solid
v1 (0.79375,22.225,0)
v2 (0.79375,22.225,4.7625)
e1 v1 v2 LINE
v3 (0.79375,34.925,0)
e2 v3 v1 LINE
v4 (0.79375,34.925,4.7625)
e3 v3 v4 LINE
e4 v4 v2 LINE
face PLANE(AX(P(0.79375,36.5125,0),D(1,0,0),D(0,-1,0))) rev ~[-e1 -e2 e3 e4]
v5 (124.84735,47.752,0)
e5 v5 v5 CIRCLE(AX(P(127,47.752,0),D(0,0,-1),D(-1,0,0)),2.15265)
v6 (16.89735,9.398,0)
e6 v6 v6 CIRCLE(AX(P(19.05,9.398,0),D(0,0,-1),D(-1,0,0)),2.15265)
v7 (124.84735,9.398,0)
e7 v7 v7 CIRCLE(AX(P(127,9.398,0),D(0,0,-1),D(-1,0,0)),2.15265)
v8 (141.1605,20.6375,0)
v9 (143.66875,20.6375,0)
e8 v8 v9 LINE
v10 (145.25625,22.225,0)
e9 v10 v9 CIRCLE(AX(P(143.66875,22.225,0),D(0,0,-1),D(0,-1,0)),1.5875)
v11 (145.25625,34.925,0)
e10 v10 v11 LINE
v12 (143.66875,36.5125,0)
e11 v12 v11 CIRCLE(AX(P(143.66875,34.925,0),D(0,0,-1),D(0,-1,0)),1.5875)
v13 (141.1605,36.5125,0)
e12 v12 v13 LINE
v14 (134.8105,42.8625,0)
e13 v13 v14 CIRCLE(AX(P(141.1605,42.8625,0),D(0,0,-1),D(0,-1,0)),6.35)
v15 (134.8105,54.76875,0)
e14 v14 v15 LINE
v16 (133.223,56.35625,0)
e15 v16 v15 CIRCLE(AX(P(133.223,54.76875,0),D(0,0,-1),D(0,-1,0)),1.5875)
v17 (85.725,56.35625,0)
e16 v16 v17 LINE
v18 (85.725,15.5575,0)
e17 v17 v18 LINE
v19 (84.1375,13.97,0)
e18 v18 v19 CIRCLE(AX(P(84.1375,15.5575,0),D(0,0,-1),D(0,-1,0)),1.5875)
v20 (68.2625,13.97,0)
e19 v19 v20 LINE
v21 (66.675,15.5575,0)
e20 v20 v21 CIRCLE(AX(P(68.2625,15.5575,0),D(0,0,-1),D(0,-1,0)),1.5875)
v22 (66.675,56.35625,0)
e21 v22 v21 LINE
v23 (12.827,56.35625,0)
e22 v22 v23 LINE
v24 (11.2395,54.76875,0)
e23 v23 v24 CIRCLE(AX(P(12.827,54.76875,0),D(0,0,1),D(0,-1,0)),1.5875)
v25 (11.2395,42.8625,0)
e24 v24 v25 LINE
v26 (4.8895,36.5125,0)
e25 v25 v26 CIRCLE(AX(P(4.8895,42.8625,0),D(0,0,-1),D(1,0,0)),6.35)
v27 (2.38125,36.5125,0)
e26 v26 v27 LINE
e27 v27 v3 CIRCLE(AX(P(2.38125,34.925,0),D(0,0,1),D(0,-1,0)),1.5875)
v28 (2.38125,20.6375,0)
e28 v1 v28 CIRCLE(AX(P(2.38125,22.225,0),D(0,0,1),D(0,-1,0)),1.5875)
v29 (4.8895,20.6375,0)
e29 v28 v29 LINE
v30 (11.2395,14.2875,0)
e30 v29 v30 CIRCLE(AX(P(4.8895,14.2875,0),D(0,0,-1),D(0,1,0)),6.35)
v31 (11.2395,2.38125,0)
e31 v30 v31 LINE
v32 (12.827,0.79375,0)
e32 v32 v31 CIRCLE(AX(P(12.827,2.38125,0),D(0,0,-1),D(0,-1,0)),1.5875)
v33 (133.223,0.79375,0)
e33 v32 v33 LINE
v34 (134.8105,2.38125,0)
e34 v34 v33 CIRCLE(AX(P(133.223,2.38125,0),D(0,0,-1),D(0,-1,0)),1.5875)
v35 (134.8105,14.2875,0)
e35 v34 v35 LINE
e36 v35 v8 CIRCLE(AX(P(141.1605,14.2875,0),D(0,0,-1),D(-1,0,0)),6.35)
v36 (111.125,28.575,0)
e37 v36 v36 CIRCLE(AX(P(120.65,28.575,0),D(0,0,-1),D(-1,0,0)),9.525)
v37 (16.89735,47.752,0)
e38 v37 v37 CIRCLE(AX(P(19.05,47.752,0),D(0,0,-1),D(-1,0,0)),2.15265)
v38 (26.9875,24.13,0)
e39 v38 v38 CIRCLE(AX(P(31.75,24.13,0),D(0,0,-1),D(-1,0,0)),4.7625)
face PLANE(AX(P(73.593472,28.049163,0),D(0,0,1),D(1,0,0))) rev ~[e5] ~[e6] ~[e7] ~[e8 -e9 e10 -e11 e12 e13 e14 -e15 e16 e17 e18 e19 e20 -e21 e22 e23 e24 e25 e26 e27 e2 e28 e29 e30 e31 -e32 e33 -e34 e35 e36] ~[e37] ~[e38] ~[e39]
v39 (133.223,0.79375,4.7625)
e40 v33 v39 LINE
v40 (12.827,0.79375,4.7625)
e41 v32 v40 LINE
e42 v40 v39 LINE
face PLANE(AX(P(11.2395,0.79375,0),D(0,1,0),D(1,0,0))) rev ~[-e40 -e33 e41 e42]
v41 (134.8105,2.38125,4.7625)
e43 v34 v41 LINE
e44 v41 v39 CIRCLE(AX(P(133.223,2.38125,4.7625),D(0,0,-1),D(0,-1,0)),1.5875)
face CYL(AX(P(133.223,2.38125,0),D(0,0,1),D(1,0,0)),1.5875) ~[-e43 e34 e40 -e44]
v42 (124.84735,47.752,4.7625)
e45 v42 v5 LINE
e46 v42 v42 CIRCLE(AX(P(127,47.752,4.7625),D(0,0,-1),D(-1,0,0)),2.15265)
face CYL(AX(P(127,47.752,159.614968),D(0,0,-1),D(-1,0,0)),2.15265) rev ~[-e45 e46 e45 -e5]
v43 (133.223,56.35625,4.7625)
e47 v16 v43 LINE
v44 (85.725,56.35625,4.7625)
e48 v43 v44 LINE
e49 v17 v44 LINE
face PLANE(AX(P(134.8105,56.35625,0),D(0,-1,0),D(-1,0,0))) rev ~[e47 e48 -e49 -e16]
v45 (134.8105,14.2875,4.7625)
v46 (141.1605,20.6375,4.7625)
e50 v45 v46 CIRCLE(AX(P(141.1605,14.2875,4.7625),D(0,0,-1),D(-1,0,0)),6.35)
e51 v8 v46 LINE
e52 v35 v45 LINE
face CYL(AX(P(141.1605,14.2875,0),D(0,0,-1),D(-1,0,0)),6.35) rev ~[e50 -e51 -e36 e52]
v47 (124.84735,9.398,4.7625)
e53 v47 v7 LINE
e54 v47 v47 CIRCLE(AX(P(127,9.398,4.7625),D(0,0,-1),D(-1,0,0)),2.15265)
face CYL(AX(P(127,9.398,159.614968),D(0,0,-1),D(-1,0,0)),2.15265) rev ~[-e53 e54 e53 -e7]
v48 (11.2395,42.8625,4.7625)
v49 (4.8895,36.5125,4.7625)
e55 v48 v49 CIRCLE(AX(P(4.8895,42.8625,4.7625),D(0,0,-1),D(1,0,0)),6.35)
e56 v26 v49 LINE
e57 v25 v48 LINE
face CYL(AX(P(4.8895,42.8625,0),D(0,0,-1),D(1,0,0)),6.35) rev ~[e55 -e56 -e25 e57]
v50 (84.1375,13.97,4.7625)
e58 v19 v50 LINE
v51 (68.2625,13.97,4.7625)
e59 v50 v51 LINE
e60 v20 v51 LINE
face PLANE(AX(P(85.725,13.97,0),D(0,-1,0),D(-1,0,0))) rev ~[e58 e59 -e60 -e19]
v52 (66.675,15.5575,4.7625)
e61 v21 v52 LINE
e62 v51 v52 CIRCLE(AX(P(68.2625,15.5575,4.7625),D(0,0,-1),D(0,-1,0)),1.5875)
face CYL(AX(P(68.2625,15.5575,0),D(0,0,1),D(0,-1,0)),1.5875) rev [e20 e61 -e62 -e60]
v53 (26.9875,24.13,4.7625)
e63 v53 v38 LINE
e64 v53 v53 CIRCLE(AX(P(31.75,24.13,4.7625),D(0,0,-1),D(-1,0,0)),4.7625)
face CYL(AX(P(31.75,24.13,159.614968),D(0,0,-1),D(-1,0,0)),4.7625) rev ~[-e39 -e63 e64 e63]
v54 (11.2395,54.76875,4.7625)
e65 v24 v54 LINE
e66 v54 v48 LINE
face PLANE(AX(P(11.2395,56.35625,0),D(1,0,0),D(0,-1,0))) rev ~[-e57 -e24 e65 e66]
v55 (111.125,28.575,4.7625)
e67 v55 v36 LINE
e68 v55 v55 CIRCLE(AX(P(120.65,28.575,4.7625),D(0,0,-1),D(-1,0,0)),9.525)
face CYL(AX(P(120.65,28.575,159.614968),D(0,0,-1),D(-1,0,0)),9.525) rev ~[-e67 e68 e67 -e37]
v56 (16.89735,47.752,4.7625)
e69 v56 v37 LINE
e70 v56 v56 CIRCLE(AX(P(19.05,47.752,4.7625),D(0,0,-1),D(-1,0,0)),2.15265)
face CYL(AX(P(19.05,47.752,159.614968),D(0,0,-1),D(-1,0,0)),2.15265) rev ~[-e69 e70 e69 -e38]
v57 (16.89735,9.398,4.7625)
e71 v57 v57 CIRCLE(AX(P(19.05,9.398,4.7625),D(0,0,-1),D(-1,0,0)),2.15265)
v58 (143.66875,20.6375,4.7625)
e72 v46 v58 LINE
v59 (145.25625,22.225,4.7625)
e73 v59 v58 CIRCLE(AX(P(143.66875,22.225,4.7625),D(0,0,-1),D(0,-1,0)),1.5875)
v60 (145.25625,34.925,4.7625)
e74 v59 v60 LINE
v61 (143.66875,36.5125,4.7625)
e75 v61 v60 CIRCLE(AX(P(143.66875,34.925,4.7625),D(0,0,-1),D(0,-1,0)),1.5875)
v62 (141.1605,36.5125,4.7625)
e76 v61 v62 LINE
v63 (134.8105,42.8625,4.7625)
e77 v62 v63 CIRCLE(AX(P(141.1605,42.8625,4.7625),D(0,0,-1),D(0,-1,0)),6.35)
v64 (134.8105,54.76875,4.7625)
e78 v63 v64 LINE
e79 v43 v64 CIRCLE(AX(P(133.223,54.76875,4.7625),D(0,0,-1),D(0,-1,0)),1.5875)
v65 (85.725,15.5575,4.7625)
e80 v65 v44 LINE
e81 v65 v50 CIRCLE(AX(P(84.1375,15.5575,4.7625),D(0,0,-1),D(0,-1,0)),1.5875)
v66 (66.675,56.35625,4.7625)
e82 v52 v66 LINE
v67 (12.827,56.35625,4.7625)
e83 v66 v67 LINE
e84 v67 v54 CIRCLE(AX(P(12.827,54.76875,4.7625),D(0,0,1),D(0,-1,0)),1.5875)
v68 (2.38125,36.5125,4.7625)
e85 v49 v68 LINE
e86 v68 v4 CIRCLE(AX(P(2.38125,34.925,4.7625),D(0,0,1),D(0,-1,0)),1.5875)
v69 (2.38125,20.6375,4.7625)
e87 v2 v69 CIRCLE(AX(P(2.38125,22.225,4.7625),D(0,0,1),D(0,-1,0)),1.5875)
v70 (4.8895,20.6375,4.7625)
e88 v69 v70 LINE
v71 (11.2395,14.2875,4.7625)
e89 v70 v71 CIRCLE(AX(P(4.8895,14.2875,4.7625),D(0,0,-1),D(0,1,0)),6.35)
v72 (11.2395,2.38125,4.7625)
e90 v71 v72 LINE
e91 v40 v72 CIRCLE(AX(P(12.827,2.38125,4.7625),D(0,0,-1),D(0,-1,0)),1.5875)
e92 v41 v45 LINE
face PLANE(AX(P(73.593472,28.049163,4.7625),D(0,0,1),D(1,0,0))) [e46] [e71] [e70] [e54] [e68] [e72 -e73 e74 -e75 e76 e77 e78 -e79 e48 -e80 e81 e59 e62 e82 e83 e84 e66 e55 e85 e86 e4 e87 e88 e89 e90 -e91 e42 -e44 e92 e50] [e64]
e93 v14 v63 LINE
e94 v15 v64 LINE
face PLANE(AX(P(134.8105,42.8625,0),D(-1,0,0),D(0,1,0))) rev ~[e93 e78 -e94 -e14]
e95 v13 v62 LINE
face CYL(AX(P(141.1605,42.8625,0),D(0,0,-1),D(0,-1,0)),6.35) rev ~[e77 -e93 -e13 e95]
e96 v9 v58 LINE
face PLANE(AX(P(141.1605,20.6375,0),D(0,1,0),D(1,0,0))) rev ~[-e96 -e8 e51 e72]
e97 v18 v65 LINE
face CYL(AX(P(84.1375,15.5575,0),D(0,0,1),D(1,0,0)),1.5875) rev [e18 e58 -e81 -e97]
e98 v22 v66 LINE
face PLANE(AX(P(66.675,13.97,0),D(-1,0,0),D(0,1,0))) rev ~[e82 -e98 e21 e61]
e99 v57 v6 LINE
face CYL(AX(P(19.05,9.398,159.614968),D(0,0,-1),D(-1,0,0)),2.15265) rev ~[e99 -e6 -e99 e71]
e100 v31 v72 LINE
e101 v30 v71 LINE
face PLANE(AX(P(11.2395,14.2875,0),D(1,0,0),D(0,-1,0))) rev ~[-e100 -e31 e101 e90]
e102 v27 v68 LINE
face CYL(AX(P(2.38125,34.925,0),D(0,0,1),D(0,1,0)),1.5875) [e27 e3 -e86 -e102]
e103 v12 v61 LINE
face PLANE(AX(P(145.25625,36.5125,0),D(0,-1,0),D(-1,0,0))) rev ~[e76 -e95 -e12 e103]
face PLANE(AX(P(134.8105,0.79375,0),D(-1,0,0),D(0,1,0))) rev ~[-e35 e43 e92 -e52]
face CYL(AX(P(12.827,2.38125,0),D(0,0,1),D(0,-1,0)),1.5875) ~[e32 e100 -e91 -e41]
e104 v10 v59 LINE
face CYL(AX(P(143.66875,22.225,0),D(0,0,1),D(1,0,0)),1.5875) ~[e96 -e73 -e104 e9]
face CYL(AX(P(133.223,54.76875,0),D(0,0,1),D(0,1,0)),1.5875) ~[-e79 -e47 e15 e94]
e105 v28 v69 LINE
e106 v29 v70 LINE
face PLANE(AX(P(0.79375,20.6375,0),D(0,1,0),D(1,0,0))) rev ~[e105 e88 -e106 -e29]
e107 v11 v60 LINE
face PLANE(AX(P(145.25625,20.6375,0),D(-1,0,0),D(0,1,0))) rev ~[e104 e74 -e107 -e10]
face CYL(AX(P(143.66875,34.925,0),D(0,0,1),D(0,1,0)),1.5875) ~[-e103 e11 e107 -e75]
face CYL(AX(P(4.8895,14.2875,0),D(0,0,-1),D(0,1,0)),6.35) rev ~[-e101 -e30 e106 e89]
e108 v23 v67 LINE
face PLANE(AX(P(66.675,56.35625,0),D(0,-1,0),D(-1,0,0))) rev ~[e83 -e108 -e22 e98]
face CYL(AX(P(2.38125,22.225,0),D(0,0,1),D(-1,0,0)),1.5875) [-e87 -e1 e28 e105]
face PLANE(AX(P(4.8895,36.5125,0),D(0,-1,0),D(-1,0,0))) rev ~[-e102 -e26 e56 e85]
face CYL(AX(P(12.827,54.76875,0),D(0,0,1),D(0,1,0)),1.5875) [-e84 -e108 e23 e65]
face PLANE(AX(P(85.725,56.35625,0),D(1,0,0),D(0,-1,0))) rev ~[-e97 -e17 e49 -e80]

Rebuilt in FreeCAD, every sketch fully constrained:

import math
import FreeCAD as App
import Part
import Sketcher
Q = App.Units.Quantity


def edges_at(feature, points):
    """Names of the edges that pass closest to the given points."""
    edges = feature.Shape.Edges
    near = lambda p: min(range(len(edges)), key=lambda i: edges[i].distToShape(Part.Vertex(*p))[0])
    return sorted({f"Edge{near(p) + 1}" for p in points})

doc = App.newDocument("Part")
params = doc.addObject("Spreadsheet::Sheet", "Params")
for row, (alias, value) in enumerate([
    ("sketch1_radius", "0.25 in"),
    ("sketch1_width", "0.75 in"),
    ("sketch1_width2", "4.865 in"),
    ("sketch1_height", "0.53125 in"),
    ("sketch1_height2", "0.625 in"),
    ("pad1_length", "0.1875 in"),
    ("sketch2_diameter", "0.375 in"),
    ("hole_diameter", "0.375 in"),
    ("sketch3_diameter", "0.75 in"),
    ("hole2_diameter", "0.75 in"),
    ("hole3_diameter", "0.1695 in"),
    ("fillet_radius", "0.0625 in"),
], start=1):
    params.set(f"A{row}", alias)
    params.set(f"B{row}", "=" + value)
    params.setAlias(f"B{row}", alias)

body = doc.addObject("PartDesign::Body", "Body")

sketch1 = doc.addObject("Sketcher::SketchObject", "Sketch")
body.addObject(sketch1)
sketch1.AttachmentSupport = (doc.XY_Plane, [""])
sketch1.MapMode = "FlatFace"
sketch1.addGeometry(Part.LineSegment(App.Vector(85.725, 56.35625, 0), App.Vector(85.725, 13.97, 0)), False)
sketch1.addGeometry(Part.LineSegment(App.Vector(85.725, 13.97, 0), App.Vector(66.675, 13.97, 0)), False)
sketch1.addGeometry(Part.LineSegment(App.Vector(66.675, 13.97, 0), App.Vector(66.675, 56.35625, 0)), False)
sketch1.addGeometry(Part.LineSegment(App.Vector(66.675, 56.35625, 0), App.Vector(11.2395, 56.35625, 0)), False)
sketch1.addGeometry(Part.LineSegment(App.Vector(11.2395, 56.35625, 0), App.Vector(11.2395, 42.8625, 0)), False)
sketch1.addGeometry(Part.ArcOfCircle(Part.Circle(App.Vector(4.8895, 42.8625, 0), App.Vector(0, 0, 1), 6.35), math.radians(-90), math.radians(0)), False)
sketch1.addGeometry(Part.LineSegment(App.Vector(4.8895, 36.5125, 0), App.Vector(0.79375, 36.5125, 0)), False)
sketch1.addGeometry(Part.LineSegment(App.Vector(0.79375, 36.5125, 0), App.Vector(0.79375, 20.6375, 0)), False)
sketch1.addGeometry(Part.LineSegment(App.Vector(0.79375, 20.6375, 0), App.Vector(4.8895, 20.6375, 0)), False)
sketch1.addGeometry(Part.ArcOfCircle(Part.Circle(App.Vector(4.8895, 14.2875, 0), App.Vector(0, 0, 1), 6.35), math.radians(0), math.radians(90)), False)
sketch1.addGeometry(Part.LineSegment(App.Vector(11.2395, 14.2875, 0), App.Vector(11.2395, 0.79375, 0)), False)
sketch1.addGeometry(Part.LineSegment(App.Vector(11.2395, 0.79375, 0), App.Vector(134.8105, 0.79375, 0)), False)
sketch1.addGeometry(Part.LineSegment(App.Vector(134.8105, 0.79375, 0), App.Vector(134.8105, 14.2875, 0)), False)
sketch1.addGeometry(Part.ArcOfCircle(Part.Circle(App.Vector(141.1605, 14.2875, 0), App.Vector(0, 0, 1), 6.35), math.radians(90), math.radians(180)), False)
sketch1.addGeometry(Part.LineSegment(App.Vector(141.1605, 20.6375, 0), App.Vector(145.25625, 20.6375, 0)), False)
sketch1.addGeometry(Part.LineSegment(App.Vector(145.25625, 20.6375, 0), App.Vector(145.25625, 36.5125, 0)), False)
sketch1.addGeometry(Part.LineSegment(App.Vector(145.25625, 36.5125, 0), App.Vector(141.1605, 36.5125, 0)), False)
sketch1.addGeometry(Part.ArcOfCircle(Part.Circle(App.Vector(141.1605, 42.8625, 0), App.Vector(0, 0, 1), 6.35), math.radians(180), math.radians(270)), False)
sketch1.addGeometry(Part.LineSegment(App.Vector(134.8105, 42.8625, 0), App.Vector(134.8105, 56.35625, 0)), False)
sketch1.addGeometry(Part.LineSegment(App.Vector(134.8105, 56.35625, 0), App.Vector(85.725, 56.35625, 0)), False)
sketch1.addConstraint(Sketcher.Constraint("Coincident", 0, 2, 1, 1))
sketch1.addConstraint(Sketcher.Constraint("Coincident", 1, 2, 2, 1))
sketch1.addConstraint(Sketcher.Constraint("Coincident", 2, 2, 3, 1))
sketch1.addConstraint(Sketcher.Constraint("Coincident", 3, 2, 4, 1))
sketch1.addConstraint(Sketcher.Constraint("Tangent", 4, 2, 5, 2))
sketch1.addConstraint(Sketcher.Constraint("Tangent", 5, 1, 6, 1))
sketch1.addConstraint(Sketcher.Constraint("Coincident", 6, 2, 7, 1))
sketch1.addConstraint(Sketcher.Constraint("Coincident", 7, 2, 8, 1))
sketch1.addConstraint(Sketcher.Constraint("Tangent", 8, 2, 9, 2))
sketch1.addConstraint(Sketcher.Constraint("Tangent", 9, 1, 10, 1))
sketch1.addConstraint(Sketcher.Constraint("Coincident", 10, 2, 11, 1))
sketch1.addConstraint(Sketcher.Constraint("Coincident", 11, 2, 12, 1))
sketch1.addConstraint(Sketcher.Constraint("Tangent", 12, 2, 13, 2))
sketch1.addConstraint(Sketcher.Constraint("Tangent", 13, 1, 14, 1))
sketch1.addConstraint(Sketcher.Constraint("Coincident", 14, 2, 15, 1))
sketch1.addConstraint(Sketcher.Constraint("Coincident", 15, 2, 16, 1))
sketch1.addConstraint(Sketcher.Constraint("Tangent", 16, 2, 17, 2))
sketch1.addConstraint(Sketcher.Constraint("Tangent", 17, 1, 18, 1))
sketch1.addConstraint(Sketcher.Constraint("Coincident", 18, 2, 19, 1))
sketch1.addConstraint(Sketcher.Constraint("Coincident", 19, 2, 0, 1))
sketch1.addConstraint(Sketcher.Constraint("Vertical", 0))
sketch1.addConstraint(Sketcher.Constraint("Horizontal", 1))
sketch1.addConstraint(Sketcher.Constraint("Vertical", 2))
sketch1.addConstraint(Sketcher.Constraint("Horizontal", 3))
sketch1.addConstraint(Sketcher.Constraint("Vertical", 4))
sketch1.addConstraint(Sketcher.Constraint("Horizontal", 6))
sketch1.addConstraint(Sketcher.Constraint("Vertical", 7))
sketch1.addConstraint(Sketcher.Constraint("Horizontal", 8))
sketch1.addConstraint(Sketcher.Constraint("Vertical", 10))
sketch1.addConstraint(Sketcher.Constraint("Horizontal", 11))
sketch1.addConstraint(Sketcher.Constraint("Vertical", 12))
sketch1.addConstraint(Sketcher.Constraint("Horizontal", 14))
sketch1.addConstraint(Sketcher.Constraint("Vertical", 15))
sketch1.addConstraint(Sketcher.Constraint("Horizontal", 16))
sketch1.addConstraint(Sketcher.Constraint("Vertical", 18))
sketch1.addConstraint(Sketcher.Constraint("Horizontal", 19))
sketch1.addConstraint(Sketcher.Constraint("Equal", 5, 9))
sketch1.addConstraint(Sketcher.Constraint("Equal", 9, 13))
sketch1.addConstraint(Sketcher.Constraint("Equal", 13, 17))
sketch1.addConstraint(Sketcher.Constraint("Horizontal", 9, 3, 13, 3))
sketch1.addConstraint(Sketcher.Constraint("Horizontal", 5, 3, 17, 3))
sketch1.addConstraint(Sketcher.Constraint("Horizontal", 3, 2, 18, 2))
sketch1.addConstraint(Sketcher.Constraint("Vertical", 5, 3, 9, 3))
sketch1.addConstraint(Sketcher.Constraint("Vertical", 13, 3, 17, 3))
sketch1.addConstraint(Sketcher.Constraint("Equal", 8, 14))
sketch1.addConstraint(Sketcher.Constraint("Equal", 4, 10))
sketch1.addConstraint(Sketcher.Constraint("Radius", 5, Q("0.25 in")))
sketch1.addConstraint(Sketcher.Constraint("DistanceX", 1, 2, 1, 1, Q("0.75 in")))
sketch1.addConstraint(Sketcher.Constraint("DistanceX", 11, 1, 11, 2, Q("4.865 in")))
sketch1.addConstraint(Sketcher.Constraint("DistanceY", 4, 2, 4, 1, Q("0.53125 in")))
sketch1.addConstraint(Sketcher.Constraint("DistanceY", 7, 2, 7, 1, Q("0.625 in")))
sketch1.addConstraint(Sketcher.Constraint("DistanceY", -1, 1, 0, 2, Q("0.55 in")))
sketch1.addConstraint(Sketcher.Constraint("DistanceX", 3, 2, 3, 1, Q("2.1825 in")))
sketch1.addConstraint(Sketcher.Constraint("DistanceY", -1, 1, 5, 3, Q("1.6875 in")))
sketch1.addConstraint(Sketcher.Constraint("DistanceX", -1, 1, 0, 2, Q("3.375 in")))
sketch1.addConstraint(Sketcher.Constraint("DistanceX", -1, 1, 6, 2, Q("0.03125 in")))
sketch1.setExpression("Constraints[46]", "Params.sketch1_radius")
sketch1.setExpression("Constraints[47]", "Params.sketch1_width")
sketch1.setExpression("Constraints[48]", "Params.sketch1_width2")
sketch1.setExpression("Constraints[49]", "Params.sketch1_height")
sketch1.setExpression("Constraints[50]", "Params.sketch1_height2")
pad1 = doc.addObject("PartDesign::Pad", "Pad")
body.addObject(pad1)
pad1.Profile = sketch1
pad1.setExpression("Length", "Params.pad1_length")

sketch2 = doc.addObject("Sketcher::SketchObject", "Sketch001")
body.addObject(sketch2)
sketch2.AttachmentSupport = (doc.XY_Plane, [""])
sketch2.MapMode = "FlatFace"
sketch2.AttachmentOffset = App.Placement(App.Vector(0, 0, 0.1875 * 25.4), App.Rotation())
sketch2.addGeometry(Part.Circle(App.Vector(31.75, 24.13, 0), App.Vector(0, 0, 1), 4.7625), False)
sketch2.addConstraint(Sketcher.Constraint("Diameter", 0, Q("0.375 in")))
sketch2.addConstraint(Sketcher.Constraint("DistanceX", -1, 1, 0, 3, Q("1.25 in")))
sketch2.addConstraint(Sketcher.Constraint("DistanceY", -1, 1, 0, 3, Q("0.95 in")))
sketch2.setExpression("Constraints[0]", "Params.sketch2_diameter")
doc.recompute()
hole = doc.addObject("PartDesign::Hole", "Hole")
body.addObject(hole)
hole.Profile = sketch2
hole.ThreadType = "None"
hole.setExpression("Diameter", "Params.hole_diameter")
hole.DepthType = "ThroughAll"

sketch3 = doc.addObject("Sketcher::SketchObject", "Sketch002")
body.addObject(sketch3)
sketch3.AttachmentSupport = (doc.XY_Plane, [""])
sketch3.MapMode = "FlatFace"
sketch3.AttachmentOffset = App.Placement(App.Vector(0, 0, 0.1875 * 25.4), App.Rotation())
sketch3.addGeometry(Part.Circle(App.Vector(76.2, 28.575, 0), App.Vector(0, 0, 1), 9.525), False)
sketch3.addGeometry(Part.Circle(App.Vector(120.65, 28.575, 0), App.Vector(0, 0, 1), 9.525), False)
sketch3.addConstraint(Sketcher.Constraint("Equal", 0, 1))
sketch3.addConstraint(Sketcher.Constraint("Horizontal", 0, 3, 1, 3))
sketch3.addConstraint(Sketcher.Constraint("Diameter", 0, Q("0.75 in")))
sketch3.addConstraint(Sketcher.Constraint("DistanceX", -1, 1, 0, 3, Q("3 in")))
sketch3.addConstraint(Sketcher.Constraint("DistanceX", -1, 1, 1, 3, Q("4.75 in")))
sketch3.addConstraint(Sketcher.Constraint("DistanceY", -1, 1, 0, 3, Q("1.125 in")))
sketch3.setExpression("Constraints[2]", "Params.sketch3_diameter")
doc.recompute()
hole2 = doc.addObject("PartDesign::Hole", "Hole001")
body.addObject(hole2)
hole2.Profile = sketch3
hole2.ThreadType = "None"
hole2.setExpression("Diameter", "Params.hole2_diameter")
hole2.DepthType = "ThroughAll"

sketch4 = doc.addObject("Sketcher::SketchObject", "Sketch003")
body.addObject(sketch4)
sketch4.AttachmentSupport = (doc.XY_Plane, [""])
sketch4.MapMode = "FlatFace"
sketch4.AttachmentOffset = App.Placement(App.Vector(0, 0, 0.1875 * 25.4), App.Rotation())
sketch4.addGeometry(Part.Circle(App.Vector(19.05, 9.398, 0), App.Vector(0, 0, 1), 2.15265), False)
sketch4.addGeometry(Part.Circle(App.Vector(19.05, 47.752, 0), App.Vector(0, 0, 1), 2.15265), False)
sketch4.addGeometry(Part.Circle(App.Vector(127, 47.752, 0), App.Vector(0, 0, 1), 2.15265), False)
sketch4.addGeometry(Part.Circle(App.Vector(127, 9.398, 0), App.Vector(0, 0, 1), 2.15265), False)
sketch4.addConstraint(Sketcher.Constraint("Equal", 0, 1))
sketch4.addConstraint(Sketcher.Constraint("Equal", 1, 2))
sketch4.addConstraint(Sketcher.Constraint("Equal", 2, 3))
sketch4.addConstraint(Sketcher.Constraint("Horizontal", 1, 3, 2, 3))
sketch4.addConstraint(Sketcher.Constraint("Horizontal", 0, 3, 3, 3))
sketch4.addConstraint(Sketcher.Constraint("Vertical", 0, 3, 1, 3))
sketch4.addConstraint(Sketcher.Constraint("Vertical", 2, 3, 3, 3))
sketch4.addConstraint(Sketcher.Constraint("DistanceX", -1, 1, 2, 3, Q("5 in")))
sketch4.addConstraint(Sketcher.Constraint("Diameter", 0, Q("0.1695 in")))
sketch4.addConstraint(Sketcher.Constraint("DistanceX", -1, 1, 0, 3, Q("0.75 in")))
sketch4.addConstraint(Sketcher.Constraint("DistanceY", -1, 1, 0, 3, Q("0.37 in")))
sketch4.addConstraint(Sketcher.Constraint("DistanceY", -1, 1, 1, 3, Q("1.88 in")))
doc.recompute()
hole3 = doc.addObject("PartDesign::Hole", "Hole002")
body.addObject(hole3)
hole3.Profile = sketch4
hole3.ThreadType = "None"
hole3.setExpression("Diameter", "Params.hole3_diameter")
hole3.DepthType = "ThroughAll"
doc.recompute()

fillet = doc.addObject("PartDesign::Fillet", "Fillet")
body.addObject(fillet)
fillet.Base = (hole3, edges_at(hole3, [
    (134.81, 56.356, 2.381),
    (145.256, 36.513, 2.381),
    (145.256, 20.637, 2.381),
    (134.81, 0.794, 2.381),
    (11.239, 0.794, 2.381),
    (0.794, 20.637, 2.381),
    (0.794, 36.513, 2.381),
    (11.239, 56.356, 2.381),
    (66.675, 13.97, 2.381),
    (85.725, 13.97, 2.381),
]))
fillet.setExpression("Radius", "Params.fillet_radius")

doc.recompute()
